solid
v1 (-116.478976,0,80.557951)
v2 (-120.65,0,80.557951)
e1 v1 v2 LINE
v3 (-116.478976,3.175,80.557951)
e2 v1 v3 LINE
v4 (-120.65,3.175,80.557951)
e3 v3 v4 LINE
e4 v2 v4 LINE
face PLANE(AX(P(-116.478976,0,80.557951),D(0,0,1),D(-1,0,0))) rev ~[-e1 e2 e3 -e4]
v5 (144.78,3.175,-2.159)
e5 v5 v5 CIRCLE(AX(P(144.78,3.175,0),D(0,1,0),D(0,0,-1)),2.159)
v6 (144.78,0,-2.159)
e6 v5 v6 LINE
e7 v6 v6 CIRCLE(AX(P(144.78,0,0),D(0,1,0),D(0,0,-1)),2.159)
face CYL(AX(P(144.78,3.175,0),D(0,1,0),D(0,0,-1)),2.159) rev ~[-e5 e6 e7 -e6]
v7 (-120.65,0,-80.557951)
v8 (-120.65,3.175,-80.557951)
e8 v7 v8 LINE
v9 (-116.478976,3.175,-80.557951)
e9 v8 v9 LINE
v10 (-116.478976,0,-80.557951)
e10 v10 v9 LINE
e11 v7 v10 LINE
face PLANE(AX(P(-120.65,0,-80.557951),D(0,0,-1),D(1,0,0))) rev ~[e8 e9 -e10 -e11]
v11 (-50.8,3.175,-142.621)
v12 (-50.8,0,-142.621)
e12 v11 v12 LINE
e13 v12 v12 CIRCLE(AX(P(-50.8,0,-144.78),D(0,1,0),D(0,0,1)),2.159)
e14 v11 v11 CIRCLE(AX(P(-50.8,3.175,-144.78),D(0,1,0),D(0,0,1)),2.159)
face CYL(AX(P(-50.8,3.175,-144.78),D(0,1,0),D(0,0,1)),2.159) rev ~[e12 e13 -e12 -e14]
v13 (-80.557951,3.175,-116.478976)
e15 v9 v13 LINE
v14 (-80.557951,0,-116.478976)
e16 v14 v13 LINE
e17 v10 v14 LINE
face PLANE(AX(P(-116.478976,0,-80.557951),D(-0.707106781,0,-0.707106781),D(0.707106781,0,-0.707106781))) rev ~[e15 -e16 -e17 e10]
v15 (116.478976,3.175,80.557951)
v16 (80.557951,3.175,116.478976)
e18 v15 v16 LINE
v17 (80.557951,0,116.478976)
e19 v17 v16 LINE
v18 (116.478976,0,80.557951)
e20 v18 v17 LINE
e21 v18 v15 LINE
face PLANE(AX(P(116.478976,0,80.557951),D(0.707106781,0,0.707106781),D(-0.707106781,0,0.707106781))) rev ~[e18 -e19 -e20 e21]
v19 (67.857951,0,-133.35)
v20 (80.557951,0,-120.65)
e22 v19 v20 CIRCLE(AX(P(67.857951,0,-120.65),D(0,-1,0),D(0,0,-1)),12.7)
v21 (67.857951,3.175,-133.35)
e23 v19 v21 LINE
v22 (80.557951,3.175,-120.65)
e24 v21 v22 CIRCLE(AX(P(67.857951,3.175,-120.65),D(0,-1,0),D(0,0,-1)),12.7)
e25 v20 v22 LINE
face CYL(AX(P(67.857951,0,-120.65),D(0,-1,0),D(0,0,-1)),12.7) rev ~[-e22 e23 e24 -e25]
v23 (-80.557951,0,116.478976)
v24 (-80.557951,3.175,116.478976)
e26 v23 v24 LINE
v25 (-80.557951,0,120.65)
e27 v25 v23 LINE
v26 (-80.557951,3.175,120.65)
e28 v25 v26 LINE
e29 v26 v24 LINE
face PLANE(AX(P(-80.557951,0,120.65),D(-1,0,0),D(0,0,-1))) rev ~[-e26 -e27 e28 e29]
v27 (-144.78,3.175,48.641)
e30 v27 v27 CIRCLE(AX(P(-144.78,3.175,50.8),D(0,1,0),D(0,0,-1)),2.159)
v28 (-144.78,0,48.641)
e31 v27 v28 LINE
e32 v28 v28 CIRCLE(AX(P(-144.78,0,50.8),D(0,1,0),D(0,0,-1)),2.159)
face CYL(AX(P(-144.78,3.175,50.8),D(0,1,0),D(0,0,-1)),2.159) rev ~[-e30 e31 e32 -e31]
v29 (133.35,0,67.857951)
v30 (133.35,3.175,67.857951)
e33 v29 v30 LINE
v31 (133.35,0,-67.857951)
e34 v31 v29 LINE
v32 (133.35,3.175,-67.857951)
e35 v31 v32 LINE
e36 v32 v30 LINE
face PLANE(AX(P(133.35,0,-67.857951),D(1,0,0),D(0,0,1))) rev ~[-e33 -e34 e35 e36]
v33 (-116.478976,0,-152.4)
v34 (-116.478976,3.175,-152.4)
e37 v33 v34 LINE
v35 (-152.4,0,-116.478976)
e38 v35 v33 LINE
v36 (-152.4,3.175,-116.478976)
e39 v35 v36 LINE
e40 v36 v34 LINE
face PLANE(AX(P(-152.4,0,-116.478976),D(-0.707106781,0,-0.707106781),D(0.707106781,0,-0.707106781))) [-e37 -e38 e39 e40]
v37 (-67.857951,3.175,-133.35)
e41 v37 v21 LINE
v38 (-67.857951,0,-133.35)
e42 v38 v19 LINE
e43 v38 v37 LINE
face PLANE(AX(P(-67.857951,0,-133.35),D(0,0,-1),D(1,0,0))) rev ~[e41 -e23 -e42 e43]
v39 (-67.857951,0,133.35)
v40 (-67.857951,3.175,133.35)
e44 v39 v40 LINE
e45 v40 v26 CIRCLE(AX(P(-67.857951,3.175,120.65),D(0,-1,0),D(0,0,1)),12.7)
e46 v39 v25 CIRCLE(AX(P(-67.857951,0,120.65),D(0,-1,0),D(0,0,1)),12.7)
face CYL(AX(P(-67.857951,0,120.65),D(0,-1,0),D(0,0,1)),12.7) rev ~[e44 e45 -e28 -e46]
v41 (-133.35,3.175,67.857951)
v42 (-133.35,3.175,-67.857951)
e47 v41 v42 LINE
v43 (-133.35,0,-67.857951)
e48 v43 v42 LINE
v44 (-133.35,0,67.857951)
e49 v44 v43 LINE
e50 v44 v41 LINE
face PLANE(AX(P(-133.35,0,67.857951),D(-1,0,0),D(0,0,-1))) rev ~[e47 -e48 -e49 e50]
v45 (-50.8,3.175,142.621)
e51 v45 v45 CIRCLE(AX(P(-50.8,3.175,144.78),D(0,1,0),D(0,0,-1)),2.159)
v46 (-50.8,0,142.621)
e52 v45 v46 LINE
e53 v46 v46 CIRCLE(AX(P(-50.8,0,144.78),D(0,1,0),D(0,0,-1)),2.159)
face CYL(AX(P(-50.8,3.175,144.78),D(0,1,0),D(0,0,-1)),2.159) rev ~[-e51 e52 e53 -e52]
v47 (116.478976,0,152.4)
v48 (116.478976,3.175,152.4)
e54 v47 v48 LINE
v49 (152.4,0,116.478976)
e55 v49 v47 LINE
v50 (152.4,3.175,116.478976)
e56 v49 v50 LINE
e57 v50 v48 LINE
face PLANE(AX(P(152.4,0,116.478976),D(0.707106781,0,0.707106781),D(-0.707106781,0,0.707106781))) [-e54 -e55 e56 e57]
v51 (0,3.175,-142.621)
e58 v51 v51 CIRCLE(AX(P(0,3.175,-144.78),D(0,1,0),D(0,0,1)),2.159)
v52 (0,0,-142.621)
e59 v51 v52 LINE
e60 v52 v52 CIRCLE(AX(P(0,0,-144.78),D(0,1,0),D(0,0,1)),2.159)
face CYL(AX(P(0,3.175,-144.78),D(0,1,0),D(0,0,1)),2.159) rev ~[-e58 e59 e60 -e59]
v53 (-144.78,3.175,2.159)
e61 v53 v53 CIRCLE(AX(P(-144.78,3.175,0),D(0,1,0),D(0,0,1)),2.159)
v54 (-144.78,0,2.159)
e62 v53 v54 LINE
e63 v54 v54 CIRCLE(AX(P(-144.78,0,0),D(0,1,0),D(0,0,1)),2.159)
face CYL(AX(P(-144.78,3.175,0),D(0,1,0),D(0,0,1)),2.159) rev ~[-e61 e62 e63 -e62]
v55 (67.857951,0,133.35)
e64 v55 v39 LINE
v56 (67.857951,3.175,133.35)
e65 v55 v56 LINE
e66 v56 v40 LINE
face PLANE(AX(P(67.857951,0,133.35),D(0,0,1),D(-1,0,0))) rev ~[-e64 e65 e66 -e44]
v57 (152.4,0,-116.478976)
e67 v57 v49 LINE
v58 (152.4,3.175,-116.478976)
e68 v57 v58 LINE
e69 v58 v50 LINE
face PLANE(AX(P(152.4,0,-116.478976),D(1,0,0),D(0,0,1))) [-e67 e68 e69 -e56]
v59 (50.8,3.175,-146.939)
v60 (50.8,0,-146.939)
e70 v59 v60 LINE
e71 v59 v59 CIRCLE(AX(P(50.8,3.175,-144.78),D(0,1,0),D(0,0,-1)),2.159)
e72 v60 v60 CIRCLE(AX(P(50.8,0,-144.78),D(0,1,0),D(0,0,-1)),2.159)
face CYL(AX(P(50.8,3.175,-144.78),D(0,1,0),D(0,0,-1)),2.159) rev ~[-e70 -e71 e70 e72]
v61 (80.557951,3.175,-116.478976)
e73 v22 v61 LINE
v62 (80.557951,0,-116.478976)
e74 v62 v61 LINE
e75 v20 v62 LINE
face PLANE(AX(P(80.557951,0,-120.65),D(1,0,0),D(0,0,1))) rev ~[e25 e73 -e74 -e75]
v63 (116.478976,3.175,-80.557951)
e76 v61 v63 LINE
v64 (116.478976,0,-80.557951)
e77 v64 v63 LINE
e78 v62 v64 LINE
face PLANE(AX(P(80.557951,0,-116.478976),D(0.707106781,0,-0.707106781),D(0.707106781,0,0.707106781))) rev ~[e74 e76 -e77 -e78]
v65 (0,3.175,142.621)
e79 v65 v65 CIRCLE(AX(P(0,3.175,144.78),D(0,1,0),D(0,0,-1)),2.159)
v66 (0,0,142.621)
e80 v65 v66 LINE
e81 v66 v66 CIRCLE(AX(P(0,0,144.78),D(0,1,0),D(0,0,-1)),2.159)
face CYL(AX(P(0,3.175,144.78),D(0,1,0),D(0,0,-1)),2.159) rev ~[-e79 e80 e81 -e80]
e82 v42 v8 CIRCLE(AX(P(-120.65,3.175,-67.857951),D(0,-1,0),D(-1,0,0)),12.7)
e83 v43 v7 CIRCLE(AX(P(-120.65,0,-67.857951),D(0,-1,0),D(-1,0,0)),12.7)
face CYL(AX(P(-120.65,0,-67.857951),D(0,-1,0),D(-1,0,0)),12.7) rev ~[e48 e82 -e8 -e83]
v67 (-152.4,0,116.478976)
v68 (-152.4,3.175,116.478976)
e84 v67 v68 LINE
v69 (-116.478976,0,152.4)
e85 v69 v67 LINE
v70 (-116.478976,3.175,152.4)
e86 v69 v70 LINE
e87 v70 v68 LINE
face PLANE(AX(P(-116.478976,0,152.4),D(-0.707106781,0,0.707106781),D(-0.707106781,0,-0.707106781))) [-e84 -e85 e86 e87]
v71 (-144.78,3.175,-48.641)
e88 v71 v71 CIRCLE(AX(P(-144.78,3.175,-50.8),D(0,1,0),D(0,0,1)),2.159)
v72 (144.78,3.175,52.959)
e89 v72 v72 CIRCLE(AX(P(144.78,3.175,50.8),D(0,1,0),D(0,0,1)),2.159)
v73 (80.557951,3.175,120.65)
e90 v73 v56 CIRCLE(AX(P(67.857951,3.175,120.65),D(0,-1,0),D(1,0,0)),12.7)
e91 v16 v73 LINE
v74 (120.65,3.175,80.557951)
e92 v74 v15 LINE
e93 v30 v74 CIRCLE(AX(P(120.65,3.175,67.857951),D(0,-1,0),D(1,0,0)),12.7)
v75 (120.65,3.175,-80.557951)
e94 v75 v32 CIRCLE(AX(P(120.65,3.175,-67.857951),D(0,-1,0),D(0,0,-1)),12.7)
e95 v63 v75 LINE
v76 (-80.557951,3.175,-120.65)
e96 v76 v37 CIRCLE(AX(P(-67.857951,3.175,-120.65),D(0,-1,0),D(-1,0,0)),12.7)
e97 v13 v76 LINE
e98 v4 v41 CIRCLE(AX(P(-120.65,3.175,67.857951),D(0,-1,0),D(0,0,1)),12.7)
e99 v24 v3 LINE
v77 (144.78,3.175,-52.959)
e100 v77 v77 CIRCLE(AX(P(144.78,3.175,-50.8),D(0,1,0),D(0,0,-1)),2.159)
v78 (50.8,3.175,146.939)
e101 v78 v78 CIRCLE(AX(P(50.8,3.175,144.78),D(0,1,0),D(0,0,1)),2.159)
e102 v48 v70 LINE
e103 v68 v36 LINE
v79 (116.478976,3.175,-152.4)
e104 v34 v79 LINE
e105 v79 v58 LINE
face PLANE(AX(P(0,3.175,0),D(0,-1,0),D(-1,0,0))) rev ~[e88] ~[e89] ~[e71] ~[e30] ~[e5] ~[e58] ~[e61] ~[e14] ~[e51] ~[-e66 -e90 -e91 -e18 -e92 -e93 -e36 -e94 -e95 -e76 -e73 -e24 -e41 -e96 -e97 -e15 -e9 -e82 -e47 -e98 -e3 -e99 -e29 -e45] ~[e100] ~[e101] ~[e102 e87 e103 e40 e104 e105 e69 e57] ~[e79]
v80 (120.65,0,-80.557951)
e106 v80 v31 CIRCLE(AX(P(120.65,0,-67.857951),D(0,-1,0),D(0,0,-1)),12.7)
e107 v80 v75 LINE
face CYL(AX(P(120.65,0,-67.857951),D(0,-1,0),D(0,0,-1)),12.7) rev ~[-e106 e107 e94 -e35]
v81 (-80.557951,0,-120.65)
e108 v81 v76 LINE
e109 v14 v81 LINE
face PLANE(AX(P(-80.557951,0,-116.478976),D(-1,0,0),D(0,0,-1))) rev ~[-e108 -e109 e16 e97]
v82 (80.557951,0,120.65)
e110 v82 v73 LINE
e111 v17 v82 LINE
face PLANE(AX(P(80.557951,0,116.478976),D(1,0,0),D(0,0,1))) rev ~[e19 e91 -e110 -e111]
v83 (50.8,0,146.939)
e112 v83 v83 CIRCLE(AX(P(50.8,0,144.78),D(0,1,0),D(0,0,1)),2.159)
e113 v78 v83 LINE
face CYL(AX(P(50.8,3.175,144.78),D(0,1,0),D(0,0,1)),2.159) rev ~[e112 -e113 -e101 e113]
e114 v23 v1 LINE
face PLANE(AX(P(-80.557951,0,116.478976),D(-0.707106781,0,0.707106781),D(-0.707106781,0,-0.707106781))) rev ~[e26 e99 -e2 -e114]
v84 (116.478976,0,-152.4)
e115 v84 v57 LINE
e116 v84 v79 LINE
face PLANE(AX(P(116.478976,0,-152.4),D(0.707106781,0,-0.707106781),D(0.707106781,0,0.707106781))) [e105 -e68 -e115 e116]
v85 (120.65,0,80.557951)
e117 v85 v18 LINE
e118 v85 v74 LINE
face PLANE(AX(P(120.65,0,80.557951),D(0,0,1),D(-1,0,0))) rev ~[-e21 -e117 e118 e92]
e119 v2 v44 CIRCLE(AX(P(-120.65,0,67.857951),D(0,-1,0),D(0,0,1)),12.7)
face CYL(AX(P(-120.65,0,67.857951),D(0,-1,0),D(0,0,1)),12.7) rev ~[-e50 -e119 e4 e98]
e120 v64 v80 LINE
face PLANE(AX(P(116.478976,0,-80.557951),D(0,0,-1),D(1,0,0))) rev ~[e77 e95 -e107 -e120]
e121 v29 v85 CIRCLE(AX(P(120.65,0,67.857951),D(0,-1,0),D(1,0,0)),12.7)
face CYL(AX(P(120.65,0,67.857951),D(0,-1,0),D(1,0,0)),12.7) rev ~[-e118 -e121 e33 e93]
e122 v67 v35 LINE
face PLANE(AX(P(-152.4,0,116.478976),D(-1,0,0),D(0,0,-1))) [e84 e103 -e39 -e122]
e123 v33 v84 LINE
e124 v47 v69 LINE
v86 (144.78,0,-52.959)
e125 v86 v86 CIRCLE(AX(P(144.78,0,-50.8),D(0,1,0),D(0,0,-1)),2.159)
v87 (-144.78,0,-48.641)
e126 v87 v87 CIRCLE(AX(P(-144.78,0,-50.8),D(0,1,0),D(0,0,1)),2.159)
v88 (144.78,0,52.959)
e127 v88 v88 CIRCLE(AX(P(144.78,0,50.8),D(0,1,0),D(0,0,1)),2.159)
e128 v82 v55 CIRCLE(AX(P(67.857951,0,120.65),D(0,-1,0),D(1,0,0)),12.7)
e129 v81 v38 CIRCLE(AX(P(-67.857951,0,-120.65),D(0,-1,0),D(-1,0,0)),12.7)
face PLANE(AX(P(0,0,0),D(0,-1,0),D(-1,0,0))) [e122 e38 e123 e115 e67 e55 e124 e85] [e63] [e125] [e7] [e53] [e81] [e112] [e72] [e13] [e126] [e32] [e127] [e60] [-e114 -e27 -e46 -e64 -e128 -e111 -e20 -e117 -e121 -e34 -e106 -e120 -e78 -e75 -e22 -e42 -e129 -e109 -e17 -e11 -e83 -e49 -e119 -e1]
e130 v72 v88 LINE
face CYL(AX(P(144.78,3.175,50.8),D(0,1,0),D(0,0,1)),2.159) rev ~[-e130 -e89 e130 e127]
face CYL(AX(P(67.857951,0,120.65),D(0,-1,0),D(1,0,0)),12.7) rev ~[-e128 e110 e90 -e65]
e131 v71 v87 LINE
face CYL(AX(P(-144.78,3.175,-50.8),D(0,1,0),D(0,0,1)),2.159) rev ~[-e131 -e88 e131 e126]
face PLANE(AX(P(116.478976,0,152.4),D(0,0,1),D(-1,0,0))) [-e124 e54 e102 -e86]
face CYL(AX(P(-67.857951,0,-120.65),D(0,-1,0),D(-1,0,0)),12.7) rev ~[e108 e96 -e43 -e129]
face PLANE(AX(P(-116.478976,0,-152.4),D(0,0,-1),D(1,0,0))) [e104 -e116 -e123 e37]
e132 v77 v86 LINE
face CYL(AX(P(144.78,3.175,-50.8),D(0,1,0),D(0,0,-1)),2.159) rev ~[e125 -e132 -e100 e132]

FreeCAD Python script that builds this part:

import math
import FreeCAD as App
import Part
import Sketcher
Q = App.Units.Quantity


def add_polygon(sketch, points):
    """Adds a closed chain of lines whose ends are joined by coincident constraints."""
    first, n = sketch.GeometryCount, len(points)
    for a, b in zip(points, points[1:] + points[:1]):
        sketch.addGeometry(Part.LineSegment(App.Vector(*a, 0), App.Vector(*b, 0)), False)
    for i in range(n):
        sketch.addConstraint(Sketcher.Constraint("Coincident", first + i, 2, first + (i + 1) % n, 1))

doc = App.newDocument("Part")
body = doc.addObject("PartDesign::Body", "Body")

# Sketch on XZ plane
sketch1 = doc.addObject("Sketcher::SketchObject", "Sketch")
body.addObject(sketch1)
sketch1.AttachmentSupport = (doc.XZ_Plane, [""])
sketch1.MapMode = "FlatFace"
add_polygon(sketch1, [(-116.5, -152.4), (-152.4, -116.5), (-152.4, 116.5), (-116.5, 152.4), (116.5, 152.4), (152.4, 116.5), (152.4, -116.5), (116.5, -152.4)])  # lines 0-7
sketch1.addGeometry(Part.LineSegment(App.Vector(-116.5, -80.6, 0), App.Vector(-80.6, -116.5, 0)), False)  # 8
sketch1.addGeometry(Part.LineSegment(App.Vector(-80.6, -116.5, 0), App.Vector(-80.6, -120.7, 0)), False)  # 9
sketch1.addGeometry(Part.ArcOfCircle(Part.Circle(App.Vector(-67.9, -120.7, 0), App.Vector(0, 0, 1), 12.7), math.radians(180), math.radians(270)), False)  # 10
sketch1.addGeometry(Part.LineSegment(App.Vector(-67.9, -133.3, 0), App.Vector(67.9, -133.3, 0)), False)  # 11
sketch1.addGeometry(Part.ArcOfCircle(Part.Circle(App.Vector(67.9, -120.7, 0), App.Vector(0, 0, 1), 12.7), math.radians(-90), math.radians(0)), False)  # 12
sketch1.addGeometry(Part.LineSegment(App.Vector(80.6, -120.7, 0), App.Vector(80.6, -116.5, 0)), False)  # 13
sketch1.addGeometry(Part.LineSegment(App.Vector(80.6, -116.5, 0), App.Vector(116.5, -80.6, 0)), False)  # 14
sketch1.addGeometry(Part.LineSegment(App.Vector(116.5, -80.6, 0), App.Vector(120.7, -80.6, 0)), False)  # 15
sketch1.addGeometry(Part.ArcOfCircle(Part.Circle(App.Vector(120.7, -67.9, 0), App.Vector(0, 0, 1), 12.7), math.radians(-90), math.radians(0)), False)  # 16
sketch1.addGeometry(Part.LineSegment(App.Vector(133.3, -67.9, 0), App.Vector(133.3, 67.9, 0)), False)  # 17
sketch1.addGeometry(Part.ArcOfCircle(Part.Circle(App.Vector(120.7, 67.9, 0), App.Vector(0, 0, 1), 12.7), math.radians(0), math.radians(90)), False)  # 18
sketch1.addGeometry(Part.LineSegment(App.Vector(120.7, 80.6, 0), App.Vector(116.5, 80.6, 0)), False)  # 19
sketch1.addGeometry(Part.LineSegment(App.Vector(116.5, 80.6, 0), App.Vector(80.6, 116.5, 0)), False)  # 20
sketch1.addGeometry(Part.LineSegment(App.Vector(80.6, 116.5, 0), App.Vector(80.6, 120.7, 0)), False)  # 21
sketch1.addGeometry(Part.ArcOfCircle(Part.Circle(App.Vector(67.9, 120.7, 0), App.Vector(0, 0, 1), 12.7), math.radians(0), math.radians(90)), False)  # 22
sketch1.addGeometry(Part.LineSegment(App.Vector(67.9, 133.3, 0), App.Vector(-67.9, 133.3, 0)), False)  # 23
sketch1.addGeometry(Part.ArcOfCircle(Part.Circle(App.Vector(-67.9, 120.7, 0), App.Vector(0, 0, 1), 12.7), math.radians(90), math.radians(180)), False)  # 24
sketch1.addGeometry(Part.LineSegment(App.Vector(-80.6, 120.7, 0), App.Vector(-80.6, 116.5, 0)), False)  # 25
sketch1.addGeometry(Part.LineSegment(App.Vector(-80.6, 116.5, 0), App.Vector(-116.5, 80.6, 0)), False)  # 26
sketch1.addGeometry(Part.LineSegment(App.Vector(-116.5, 80.6, 0), App.Vector(-120.7, 80.6, 0)), False)  # 27
sketch1.addGeometry(Part.ArcOfCircle(Part.Circle(App.Vector(-120.7, 67.9, 0), App.Vector(0, 0, 1), 12.7), math.radians(90), math.radians(180)), False)  # 28
sketch1.addGeometry(Part.LineSegment(App.Vector(-133.3, 67.9, 0), App.Vector(-133.3, -67.9, 0)), False)  # 29
sketch1.addGeometry(Part.ArcOfCircle(Part.Circle(App.Vector(-120.7, -67.9, 0), App.Vector(0, 0, 1), 12.7), math.radians(180), math.radians(270)), False)  # 30
sketch1.addGeometry(Part.LineSegment(App.Vector(-120.7, -80.6, 0), App.Vector(-116.5, -80.6, 0)), False)  # 31
sketch1.addConstraint([
    Sketcher.Constraint("Coincident", 8, 2, 9, 1),
    Sketcher.Constraint("Tangent", 9, 2, 10, 1),
    Sketcher.Constraint("Tangent", 10, 2, 11, 1),
    Sketcher.Constraint("Tangent", 11, 2, 12, 1),
    Sketcher.Constraint("Tangent", 12, 2, 13, 1),
    Sketcher.Constraint("Coincident", 13, 2, 14, 1),
    Sketcher.Constraint("Coincident", 14, 2, 15, 1),
    Sketcher.Constraint("Tangent", 15, 2, 16, 1),
    Sketcher.Constraint("Tangent", 16, 2, 17, 1),
    Sketcher.Constraint("Tangent", 17, 2, 18, 1),
    Sketcher.Constraint("Tangent", 18, 2, 19, 1),
    Sketcher.Constraint("Coincident", 19, 2, 20, 1),
    Sketcher.Constraint("Coincident", 20, 2, 21, 1),
    Sketcher.Constraint("Tangent", 21, 2, 22, 1),
    Sketcher.Constraint("Tangent", 22, 2, 23, 1),
    Sketcher.Constraint("Tangent", 23, 2, 24, 1),
    Sketcher.Constraint("Tangent", 24, 2, 25, 1),
    Sketcher.Constraint("Coincident", 25, 2, 26, 1),
    Sketcher.Constraint("Coincident", 26, 2, 27, 1),
    Sketcher.Constraint("Tangent", 27, 2, 28, 1),
    Sketcher.Constraint("Tangent", 28, 2, 29, 1),
    Sketcher.Constraint("Tangent", 29, 2, 30, 1),
    Sketcher.Constraint("Tangent", 30, 2, 31, 1),
    Sketcher.Constraint("Coincident", 31, 2, 8, 1),
    Sketcher.Constraint("Vertical", 1),
    Sketcher.Constraint("Horizontal", 3),
    Sketcher.Constraint("Vertical", 5),
    Sketcher.Constraint("Horizontal", 7),
    Sketcher.Constraint("Vertical", 9),
    Sketcher.Constraint("Horizontal", 11),
    Sketcher.Constraint("Vertical", 13),
    Sketcher.Constraint("Horizontal", 15),
    Sketcher.Constraint("Vertical", 17),
    Sketcher.Constraint("Horizontal", 19),
    Sketcher.Constraint("Vertical", 21),
    Sketcher.Constraint("Horizontal", 23),
    Sketcher.Constraint("Vertical", 25),
    Sketcher.Constraint("Horizontal", 27),
    Sketcher.Constraint("Vertical", 29),
    Sketcher.Constraint("Horizontal", 31),
    Sketcher.Constraint("Equal", 10, 12),
    Sketcher.Constraint("Equal", 12, 16),
    Sketcher.Constraint("Equal", 16, 18),
    Sketcher.Constraint("Equal", 18, 22),
    Sketcher.Constraint("Equal", 22, 24),
    Sketcher.Constraint("Equal", 24, 28),
    Sketcher.Constraint("Equal", 28, 30),
    Sketcher.Constraint("Symmetric", 10, 3, 22, 3, -1, 1),
    Sketcher.Constraint("Symmetric", 16, 3, 28, 3, -1, 1),
    Sketcher.Constraint("Symmetric", 0, 2, 4, 2, -1, 1),
    Sketcher.Constraint("Symmetric", 2, 2, 6, 2, -1, 1),
    Sketcher.Constraint("Symmetric", 13, 2, 25, 2, -1, 1),
    Sketcher.Constraint("Symmetric", 19, 2, 31, 2, -1, 1),
    Sketcher.Constraint("Symmetric", 8, 2, 13, 2, -2),
    Sketcher.Constraint("Symmetric", 19, 2, 26, 2, -2),
    Sketcher.Constraint("Perpendicular", 0, 2),
    Sketcher.Constraint("Perpendicular", 2, 4),
    Sketcher.Constraint("Perpendicular", 4, 6),
    Sketcher.Constraint("Perpendicular", 6, 8),
    Sketcher.Constraint("Perpendicular", 8, 14),
    Sketcher.Constraint("Perpendicular", 14, 20),
    Sketcher.Constraint("Perpendicular", 20, 26),
    Sketcher.Constraint("Horizontal", 1, 2, 4, 2),
    Sketcher.Constraint("Horizontal", 5, 2, 8, 2),
    Sketcher.Constraint("Vertical", 6, 2, 14, 2),
    Sketcher.Constraint("Equal", 7, 1),
    Sketcher.Constraint("Equal", 31, 9),
    Sketcher.Constraint("Equal", 6, 8),
    Sketcher.Constraint("Radius", 10, Q("0.5 in")),
    Sketcher.Constraint("Distance", 0, Q("2 in")),
    Sketcher.Constraint("DistanceX", 0, 2, -1, 1, Q("6 in")),
    Sketcher.Constraint("DistanceY", 12, 3, 22, 3, Q("9.5 in")),
])
pad1 = doc.addObject("PartDesign::Pad", "Pad")
body.addObject(pad1)
pad1.Profile = sketch1
pad1.Length = Q("0.125 in")
pad1.Reversed = True

# Sketch on XZ plane
sketch2 = doc.addObject("Sketcher::SketchObject", "Sketch001")
body.addObject(sketch2)
sketch2.AttachmentSupport = (doc.XZ_Plane, [""])
sketch2.MapMode = "FlatFace"
sketch2.AttachmentOffset = App.Placement(App.Vector(0, 0, -0.125 * 25.4), App.Rotation())
sketch2.addGeometry([
    Part.Circle(App.Vector(0, -144.8, 0), App.Vector(0, 0, 1), 2.2),  # 0
    Part.Circle(App.Vector(-50.8, -144.8, 0), App.Vector(0, 0, 1), 2.2),  # 1
    Part.Circle(App.Vector(-144.8, -50.8, 0), App.Vector(0, 0, 1), 2.2),  # 2
    Part.Circle(App.Vector(-144.8, 0, 0), App.Vector(0, 0, 1), 2.2),  # 3
    Part.Circle(App.Vector(144.8, 0, 0), App.Vector(0, 0, 1), 2.2),  # 4
    Part.Circle(App.Vector(144.8, -50.8, 0), App.Vector(0, 0, 1), 2.2),  # 5
    Part.Circle(App.Vector(50.8, -144.8, 0), App.Vector(0, 0, 1), 2.2),  # 6
    Part.Circle(App.Vector(50.8, 144.8, 0), App.Vector(0, 0, 1), 2.2),  # 7
    Part.Circle(App.Vector(144.8, 50.8, 0), App.Vector(0, 0, 1), 2.2),  # 8
    Part.Circle(App.Vector(-50.8, 144.8, 0), App.Vector(0, 0, 1), 2.2),  # 9
    Part.Circle(App.Vector(0, 144.8, 0), App.Vector(0, 0, 1), 2.2),  # 10
    Part.Circle(App.Vector(-144.8, 50.8, 0), App.Vector(0, 0, 1), 2.2),  # 11
], False)
sketch2.addConstraint([
    Sketcher.Constraint("Equal", 0, 1),
    Sketcher.Constraint("Equal", 1, 2),
    Sketcher.Constraint("Equal", 2, 3),
    Sketcher.Constraint("Equal", 3, 4),
    Sketcher.Constraint("Equal", 4, 5),
    Sketcher.Constraint("Equal", 5, 6),
    Sketcher.Constraint("Equal", 6, 7),
    Sketcher.Constraint("Equal", 7, 8),
    Sketcher.Constraint("Equal", 8, 9),
    Sketcher.Constraint("Equal", 9, 10),
    Sketcher.Constraint("Equal", 10, 11),
    Sketcher.Constraint("Symmetric", 3, 3, 4, 3, -1, 1),
    Sketcher.Constraint("Symmetric", 1, 3, 7, 3, -1, 1),
    Sketcher.Constraint("Symmetric", 2, 3, 8, 3, -1, 1),
    Sketcher.Constraint("Symmetric", 6, 3, 9, 3, -1, 1),
    Sketcher.Constraint("Symmetric", 0, 3, 10, 3, -1, 1),
    Sketcher.Constraint("Symmetric", 5, 3, 11, 3, -1, 1),
    Sketcher.Constraint("Symmetric", 2, 3, 5, 3, -2),
    Sketcher.Constraint("Symmetric", 1, 3, 6, 3, -2),
    Sketcher.Constraint("PointOnObject", 0, 3, -2),
    Sketcher.Constraint("PointOnObject", 3, 3, -1),
    Sketcher.Constraint("Horizontal", 0, 3, 1, 3),
    Sketcher.Constraint("Vertical", 2, 3, 3, 3),
    Sketcher.Constraint("Diameter", 0, Q("0.17 in")),
    Sketcher.Constraint("DistanceX", 1, 3, -1, 1, Q("2 in")),
    Sketcher.Constraint("DistanceY", 2, 3, -1, 1, Q("2 in")),
    Sketcher.Constraint("DistanceY", 0, 3, -1, 1, Q("5.7 in")),
    Sketcher.Constraint("DistanceX", 2, 3, -1, 1, Q("5.7 in")),
])
pocket1 = doc.addObject("PartDesign::Pocket", "Pocket")
body.addObject(pocket1)
pocket1.Profile = sketch2
pocket1.Type = "ThroughAll"
pocket1.Reversed = True

doc.recompute()
